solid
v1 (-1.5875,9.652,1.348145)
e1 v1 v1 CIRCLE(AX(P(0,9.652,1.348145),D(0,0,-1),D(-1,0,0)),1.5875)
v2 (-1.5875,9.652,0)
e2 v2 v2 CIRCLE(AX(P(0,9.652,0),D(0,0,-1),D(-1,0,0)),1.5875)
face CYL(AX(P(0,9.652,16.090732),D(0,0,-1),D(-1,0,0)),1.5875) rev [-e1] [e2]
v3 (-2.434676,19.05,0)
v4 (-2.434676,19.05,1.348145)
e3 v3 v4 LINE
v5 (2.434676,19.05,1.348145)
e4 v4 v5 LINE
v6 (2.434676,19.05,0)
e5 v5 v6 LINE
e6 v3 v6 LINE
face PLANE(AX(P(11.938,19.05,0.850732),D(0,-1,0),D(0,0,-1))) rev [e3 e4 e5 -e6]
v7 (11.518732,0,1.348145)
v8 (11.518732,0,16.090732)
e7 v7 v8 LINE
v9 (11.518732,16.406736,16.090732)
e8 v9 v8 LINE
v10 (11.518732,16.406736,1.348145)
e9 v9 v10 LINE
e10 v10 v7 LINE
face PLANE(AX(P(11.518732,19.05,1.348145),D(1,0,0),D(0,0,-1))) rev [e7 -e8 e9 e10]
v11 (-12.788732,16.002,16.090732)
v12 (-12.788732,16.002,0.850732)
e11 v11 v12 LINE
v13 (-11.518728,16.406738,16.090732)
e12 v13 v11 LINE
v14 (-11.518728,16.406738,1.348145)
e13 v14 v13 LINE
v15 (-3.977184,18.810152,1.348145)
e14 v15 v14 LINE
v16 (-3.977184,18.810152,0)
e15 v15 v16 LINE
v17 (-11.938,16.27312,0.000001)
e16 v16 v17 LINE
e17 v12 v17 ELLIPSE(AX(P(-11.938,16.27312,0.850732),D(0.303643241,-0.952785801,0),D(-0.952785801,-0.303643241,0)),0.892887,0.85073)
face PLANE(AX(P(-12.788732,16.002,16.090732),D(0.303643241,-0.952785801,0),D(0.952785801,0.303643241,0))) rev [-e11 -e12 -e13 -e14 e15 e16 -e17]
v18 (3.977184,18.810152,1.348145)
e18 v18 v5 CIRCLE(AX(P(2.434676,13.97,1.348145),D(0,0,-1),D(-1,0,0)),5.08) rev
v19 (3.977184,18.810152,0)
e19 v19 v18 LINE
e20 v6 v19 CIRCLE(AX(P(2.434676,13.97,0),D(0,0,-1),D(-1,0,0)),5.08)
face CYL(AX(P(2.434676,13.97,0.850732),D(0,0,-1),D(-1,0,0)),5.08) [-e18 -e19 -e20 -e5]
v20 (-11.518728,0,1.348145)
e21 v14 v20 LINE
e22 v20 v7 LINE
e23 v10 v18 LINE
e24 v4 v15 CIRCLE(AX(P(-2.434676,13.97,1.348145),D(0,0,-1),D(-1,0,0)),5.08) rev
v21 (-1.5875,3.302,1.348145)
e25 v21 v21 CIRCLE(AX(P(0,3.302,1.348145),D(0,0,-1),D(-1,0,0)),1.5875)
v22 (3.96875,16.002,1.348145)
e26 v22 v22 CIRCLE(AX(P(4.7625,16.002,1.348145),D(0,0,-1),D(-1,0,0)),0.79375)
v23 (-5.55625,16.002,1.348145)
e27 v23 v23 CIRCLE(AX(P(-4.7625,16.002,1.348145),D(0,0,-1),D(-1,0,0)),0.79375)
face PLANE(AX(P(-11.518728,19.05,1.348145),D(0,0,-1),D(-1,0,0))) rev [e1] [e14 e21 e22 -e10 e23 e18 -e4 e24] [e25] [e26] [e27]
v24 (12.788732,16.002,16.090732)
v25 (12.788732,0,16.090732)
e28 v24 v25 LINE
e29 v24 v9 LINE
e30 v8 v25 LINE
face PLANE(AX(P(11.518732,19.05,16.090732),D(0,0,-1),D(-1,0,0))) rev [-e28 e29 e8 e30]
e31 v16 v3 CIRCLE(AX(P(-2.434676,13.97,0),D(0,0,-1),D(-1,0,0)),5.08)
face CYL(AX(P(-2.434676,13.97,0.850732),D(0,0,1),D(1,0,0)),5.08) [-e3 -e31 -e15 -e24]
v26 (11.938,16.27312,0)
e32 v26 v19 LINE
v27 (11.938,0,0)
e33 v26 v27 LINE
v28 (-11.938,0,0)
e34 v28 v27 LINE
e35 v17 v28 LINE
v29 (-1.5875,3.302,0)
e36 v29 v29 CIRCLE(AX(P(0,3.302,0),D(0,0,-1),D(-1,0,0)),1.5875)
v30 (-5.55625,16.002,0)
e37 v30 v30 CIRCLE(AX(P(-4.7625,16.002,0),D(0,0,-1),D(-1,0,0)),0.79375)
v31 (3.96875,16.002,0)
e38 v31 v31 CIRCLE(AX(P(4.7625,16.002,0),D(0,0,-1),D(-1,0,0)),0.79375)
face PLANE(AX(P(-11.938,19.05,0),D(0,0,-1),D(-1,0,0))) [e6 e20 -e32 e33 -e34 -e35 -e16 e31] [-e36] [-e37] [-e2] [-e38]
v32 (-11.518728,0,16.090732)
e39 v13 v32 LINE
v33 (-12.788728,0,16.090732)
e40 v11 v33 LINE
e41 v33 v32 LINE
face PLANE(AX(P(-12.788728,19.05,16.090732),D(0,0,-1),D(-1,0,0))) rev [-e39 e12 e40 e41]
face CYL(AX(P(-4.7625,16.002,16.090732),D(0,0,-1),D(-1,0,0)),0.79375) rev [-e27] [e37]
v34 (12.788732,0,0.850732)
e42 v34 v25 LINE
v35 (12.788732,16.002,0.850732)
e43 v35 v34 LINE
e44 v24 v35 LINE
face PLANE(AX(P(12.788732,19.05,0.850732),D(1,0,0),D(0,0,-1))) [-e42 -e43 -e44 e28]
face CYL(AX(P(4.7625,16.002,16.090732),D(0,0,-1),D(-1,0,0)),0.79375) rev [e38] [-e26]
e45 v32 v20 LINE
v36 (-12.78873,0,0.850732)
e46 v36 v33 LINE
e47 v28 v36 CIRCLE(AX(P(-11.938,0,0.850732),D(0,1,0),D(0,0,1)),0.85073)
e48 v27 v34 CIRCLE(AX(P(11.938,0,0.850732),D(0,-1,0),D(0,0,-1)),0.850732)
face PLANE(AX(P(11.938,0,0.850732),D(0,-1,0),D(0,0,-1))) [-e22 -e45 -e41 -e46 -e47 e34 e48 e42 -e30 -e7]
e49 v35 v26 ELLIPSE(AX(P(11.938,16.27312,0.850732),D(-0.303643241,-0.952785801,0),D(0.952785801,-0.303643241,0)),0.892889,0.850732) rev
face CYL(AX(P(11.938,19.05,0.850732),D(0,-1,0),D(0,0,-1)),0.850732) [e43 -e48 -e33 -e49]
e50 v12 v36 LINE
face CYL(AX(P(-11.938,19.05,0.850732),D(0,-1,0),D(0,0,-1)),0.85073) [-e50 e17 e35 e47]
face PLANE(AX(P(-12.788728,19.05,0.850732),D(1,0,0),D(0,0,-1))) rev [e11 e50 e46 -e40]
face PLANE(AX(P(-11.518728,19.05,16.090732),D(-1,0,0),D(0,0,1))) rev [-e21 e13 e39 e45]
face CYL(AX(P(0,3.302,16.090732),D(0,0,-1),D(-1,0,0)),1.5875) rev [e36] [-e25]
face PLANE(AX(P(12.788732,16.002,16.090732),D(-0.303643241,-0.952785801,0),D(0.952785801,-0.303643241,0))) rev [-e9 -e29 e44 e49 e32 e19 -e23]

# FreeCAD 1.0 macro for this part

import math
import FreeCAD as App
import Part
import Sketcher
Q = App.Units.Quantity


def edges_at(feature, points):
    """Names of the edges that pass closest to the given points."""
    edges = feature.Shape.Edges
    near = lambda p: min(range(len(edges)), key=lambda i: edges[i].distToShape(Part.Vertex(*p))[0])
    return sorted({f"Edge{near(p) + 1}" for p in points})


def add_polygon(sketch, points):
    """Adds a closed chain of lines whose ends are joined by coincident constraints."""
    first, n = sketch.GeometryCount, len(points)
    for a, b in zip(points, points[1:] + points[:1]):
        sketch.addGeometry(Part.LineSegment(App.Vector(*a, 0), App.Vector(*b, 0)), False)
    for i in range(n):
        sketch.addConstraint(Sketcher.Constraint("Coincident", first + i, 2, first + (i + 1) % n, 1))

doc = App.newDocument("Part")
params = doc.addObject("Spreadsheet::Sheet", "Params")
for row, (alias, value) in enumerate([
    ("sketch1_height", "0.6 in"),
    ("sketch1_width", "0.94 in"),
    ("sketch1_width2", "0.05 in"),
    ("pad1_length", "0.75 in"),
    ("sketch2_diameter", "0.125 in"),
    ("sketch2_diameter2", "0.0625 in"),
    ("sketch2_height", "0.12 in"),
    ("fillet_radius", "0.2 in"),
], start=1):
    params.set(f"A{row}", alias)
    params.set(f"B{row}", "=" + value)
    params.setAlias(f"B{row}", alias)

body = doc.addObject("PartDesign::Body", "Body")

sketch1 = body.newObject("Sketcher::SketchObject", "Sketch")
sketch1.AttachmentSupport = (doc.getObject("XZ_Plane"), [""])
sketch1.MapMode = "FlatFace"
sketch1.addGeometry(Part.LineSegment(App.Vector(11.938, 0, 0), App.Vector(-11.938, 0, 0)), False)
sketch1.addGeometry(Part.ArcOfCircle(Part.Circle(App.Vector(-11.938003, 0.850724, 0), App.Vector(0, 0, 1), 0.850724), math.radians(179.999439), math.radians(270.000232)), False)
sketch1.addGeometry(Part.LineSegment(App.Vector(-12.788728, 0.850732, 0), App.Vector(-12.788728, 16.090732, 0)), False)
sketch1.addGeometry(Part.LineSegment(App.Vector(-12.788728, 16.090732, 0), App.Vector(-11.518728, 16.090732, 0)), False)
sketch1.addGeometry(Part.LineSegment(App.Vector(-11.518728, 16.090732, 0), App.Vector(-11.518728, 1.348145, 0)), False)
sketch1.addGeometry(Part.LineSegment(App.Vector(-11.518728, 1.348145, 0), App.Vector(11.518732, 1.348145, 0)), False)
sketch1.addGeometry(Part.LineSegment(App.Vector(11.518732, 1.348145, 0), App.Vector(11.518732, 16.090732, 0)), False)
sketch1.addGeometry(Part.LineSegment(App.Vector(11.518732, 16.090732, 0), App.Vector(12.788732, 16.090732, 0)), False)
sketch1.addGeometry(Part.LineSegment(App.Vector(12.788732, 16.090732, 0), App.Vector(12.788732, 0.850732, 0)), False)
sketch1.addGeometry(Part.ArcOfCircle(Part.Circle(App.Vector(11.938, 0.850732, 0), App.Vector(0, 0, 1), 0.850732), math.radians(-90), math.radians(0)), False)
sketch1.addConstraint(Sketcher.Constraint("Coincident", 0, 2, 1, 2))
sketch1.addConstraint(Sketcher.Constraint("Coincident", 1, 1, 2, 1))
sketch1.addConstraint(Sketcher.Constraint("Coincident", 2, 2, 3, 1))
sketch1.addConstraint(Sketcher.Constraint("Coincident", 3, 2, 4, 1))
sketch1.addConstraint(Sketcher.Constraint("Coincident", 4, 2, 5, 1))
sketch1.addConstraint(Sketcher.Constraint("Coincident", 5, 2, 6, 1))
sketch1.addConstraint(Sketcher.Constraint("Coincident", 6, 2, 7, 1))
sketch1.addConstraint(Sketcher.Constraint("Coincident", 7, 2, 8, 1))
sketch1.addConstraint(Sketcher.Constraint("Tangent", 8, 2, 9, 2))
sketch1.addConstraint(Sketcher.Constraint("Tangent", 9, 1, 0, 1))
sketch1.addConstraint(Sketcher.Constraint("Horizontal", 0))
sketch1.addConstraint(Sketcher.Constraint("Vertical", 2))
sketch1.addConstraint(Sketcher.Constraint("Horizontal", 3))
sketch1.addConstraint(Sketcher.Constraint("Vertical", 4))
sketch1.addConstraint(Sketcher.Constraint("Horizontal", 5))
sketch1.addConstraint(Sketcher.Constraint("Vertical", 6))
sketch1.addConstraint(Sketcher.Constraint("Horizontal", 7))
sketch1.addConstraint(Sketcher.Constraint("Vertical", 8))
sketch1.addConstraint(Sketcher.Constraint("Symmetric", 0, 2, 9, 1, -1, 1))
sketch1.addConstraint(Sketcher.Constraint("Symmetric", 1, 3, 9, 3, -2))
sketch1.addConstraint(Sketcher.Constraint("Symmetric", 3, 2, 6, 2, -2))
sketch1.addConstraint(Sketcher.Constraint("Horizontal", 9, 3, 1, 1))
sketch1.addConstraint(Sketcher.Constraint("DistanceY", 2, 1, 2, 2, Q("0.6 in")))
sketch1.addConstraint(Sketcher.Constraint("DistanceX", 0, 2, 0, 1, Q("0.94 in")))
sketch1.addConstraint(Sketcher.Constraint("DistanceX", 3, 1, 3, 2, Q("0.05 in")))
sketch1.addConstraint(Sketcher.Constraint("Radius", 1, 0.850724))
sketch1.addConstraint(Sketcher.Constraint("DistanceY", 4, 2, 4, 1, 14.742588))
sketch1.setExpression("Constraints[22]", "Params.sketch1_height")
sketch1.setExpression("Constraints[23]", "Params.sketch1_width")
sketch1.setExpression("Constraints[24]", "Params.sketch1_width2")
pad1 = body.newObject("PartDesign::Pad", "Pad")
pad1.Profile = sketch1
pad1.setExpression("Length", "Params.pad1_length")
pad1.Reversed = True

sketch2 = body.newObject("Sketcher::SketchObject", "Sketch001")
sketch2.AttachmentSupport = (doc.getObject("XY_Plane"), [""])
sketch2.MapMode = "FlatFace"
sketch2.addGeometry(Part.Circle(App.Vector(0, 9.652, 0), App.Vector(0, 0, 1), 1.5875), False)
sketch2.addGeometry(Part.Circle(App.Vector(0, 3.302, 0), App.Vector(0, 0, 1), 1.5875), False)
sketch2.addGeometry(Part.Circle(App.Vector(4.7625, 16.002, 0), App.Vector(0, 0, 1), 0.79375), False)
sketch2.addGeometry(Part.Circle(App.Vector(-4.7625, 16.002, 0), App.Vector(0, 0, 1), 0.79375), False)
add_polygon(sketch2, [(12.788732, 16.002), (3.224577, 19.05), (12.788732, 19.05)])
add_polygon(sketch2, [(-3.224577, 19.05), (-12.788732, 16.002), (-12.78873, 19.05)])
sketch2.addConstraint(Sketcher.Constraint("Horizontal", 5))
sketch2.addConstraint(Sketcher.Constraint("Vertical", 6))
sketch2.addConstraint(Sketcher.Constraint("Horizontal", 9))
sketch2.addConstraint(Sketcher.Constraint("Equal", 0, 1))
sketch2.addConstraint(Sketcher.Constraint("Equal", 2, 3))
sketch2.addConstraint(Sketcher.Constraint("Symmetric", 2, 3, 3, 3, -2))
sketch2.addConstraint(Sketcher.Constraint("Symmetric", 6, 2, 7, 2, -2))
sketch2.addConstraint(Sketcher.Constraint("Symmetric", 5, 2, 8, 2, -2))
sketch2.addConstraint(Sketcher.Constraint("PointOnObject", 0, 3, -2))
sketch2.addConstraint(Sketcher.Constraint("PointOnObject", 1, 3, -2))
sketch2.addConstraint(Sketcher.Constraint("Horizontal", 3, 3, 6, 2))
sketch2.addConstraint(Sketcher.Constraint("Equal", 4, 7))
sketch2.addConstraint(Sketcher.Constraint("Diameter", 0, Q("0.125 in")))
sketch2.addConstraint(Sketcher.Constraint("Diameter", 2, Q("0.0625 in")))
sketch2.addConstraint(Sketcher.Constraint("DistanceY", 6, 2, 6, 1, Q("0.12 in")))
sketch2.addConstraint(Sketcher.Constraint("DistanceY", 1, 3, 2, 3, Q("0.5 in")))
sketch2.addConstraint(Sketcher.Constraint("DistanceY", -1, 1, 0, 3, Q("0.38 in")))
sketch2.addConstraint(Sketcher.Constraint("DistanceY", -1, 1, 1, 3, Q("0.13 in")))
sketch2.addConstraint(Sketcher.Constraint("DistanceX", -1, 1, 2, 3, Q("0.1875 in")))
sketch2.addConstraint(Sketcher.Constraint("DistanceX", 5, 1, 5, 2, 9.564155))
sketch2.addConstraint(Sketcher.Constraint("DistanceX", 8, 2, -1, 1, 12.78873))
sketch2.setExpression("Constraints[18]", "Params.sketch2_diameter")
sketch2.setExpression("Constraints[19]", "Params.sketch2_diameter2")
sketch2.setExpression("Constraints[20]", "Params.sketch2_height")
pocket1 = body.newObject("PartDesign::Pocket", "Pocket")
pocket1.Profile = sketch2
pocket1.Type = "ThroughAll"
pocket1.Reversed = True
doc.recompute()

fillet = body.newObject("PartDesign::Fillet", "Fillet")
fillet.Base = (pocket1, edges_at(pocket1, [(3.225, 19.05, 0.674), (-3.225, 19.05, 0.674)]))
fillet.setExpression("Radius", "Params.fillet_radius")

doc.recompute()
